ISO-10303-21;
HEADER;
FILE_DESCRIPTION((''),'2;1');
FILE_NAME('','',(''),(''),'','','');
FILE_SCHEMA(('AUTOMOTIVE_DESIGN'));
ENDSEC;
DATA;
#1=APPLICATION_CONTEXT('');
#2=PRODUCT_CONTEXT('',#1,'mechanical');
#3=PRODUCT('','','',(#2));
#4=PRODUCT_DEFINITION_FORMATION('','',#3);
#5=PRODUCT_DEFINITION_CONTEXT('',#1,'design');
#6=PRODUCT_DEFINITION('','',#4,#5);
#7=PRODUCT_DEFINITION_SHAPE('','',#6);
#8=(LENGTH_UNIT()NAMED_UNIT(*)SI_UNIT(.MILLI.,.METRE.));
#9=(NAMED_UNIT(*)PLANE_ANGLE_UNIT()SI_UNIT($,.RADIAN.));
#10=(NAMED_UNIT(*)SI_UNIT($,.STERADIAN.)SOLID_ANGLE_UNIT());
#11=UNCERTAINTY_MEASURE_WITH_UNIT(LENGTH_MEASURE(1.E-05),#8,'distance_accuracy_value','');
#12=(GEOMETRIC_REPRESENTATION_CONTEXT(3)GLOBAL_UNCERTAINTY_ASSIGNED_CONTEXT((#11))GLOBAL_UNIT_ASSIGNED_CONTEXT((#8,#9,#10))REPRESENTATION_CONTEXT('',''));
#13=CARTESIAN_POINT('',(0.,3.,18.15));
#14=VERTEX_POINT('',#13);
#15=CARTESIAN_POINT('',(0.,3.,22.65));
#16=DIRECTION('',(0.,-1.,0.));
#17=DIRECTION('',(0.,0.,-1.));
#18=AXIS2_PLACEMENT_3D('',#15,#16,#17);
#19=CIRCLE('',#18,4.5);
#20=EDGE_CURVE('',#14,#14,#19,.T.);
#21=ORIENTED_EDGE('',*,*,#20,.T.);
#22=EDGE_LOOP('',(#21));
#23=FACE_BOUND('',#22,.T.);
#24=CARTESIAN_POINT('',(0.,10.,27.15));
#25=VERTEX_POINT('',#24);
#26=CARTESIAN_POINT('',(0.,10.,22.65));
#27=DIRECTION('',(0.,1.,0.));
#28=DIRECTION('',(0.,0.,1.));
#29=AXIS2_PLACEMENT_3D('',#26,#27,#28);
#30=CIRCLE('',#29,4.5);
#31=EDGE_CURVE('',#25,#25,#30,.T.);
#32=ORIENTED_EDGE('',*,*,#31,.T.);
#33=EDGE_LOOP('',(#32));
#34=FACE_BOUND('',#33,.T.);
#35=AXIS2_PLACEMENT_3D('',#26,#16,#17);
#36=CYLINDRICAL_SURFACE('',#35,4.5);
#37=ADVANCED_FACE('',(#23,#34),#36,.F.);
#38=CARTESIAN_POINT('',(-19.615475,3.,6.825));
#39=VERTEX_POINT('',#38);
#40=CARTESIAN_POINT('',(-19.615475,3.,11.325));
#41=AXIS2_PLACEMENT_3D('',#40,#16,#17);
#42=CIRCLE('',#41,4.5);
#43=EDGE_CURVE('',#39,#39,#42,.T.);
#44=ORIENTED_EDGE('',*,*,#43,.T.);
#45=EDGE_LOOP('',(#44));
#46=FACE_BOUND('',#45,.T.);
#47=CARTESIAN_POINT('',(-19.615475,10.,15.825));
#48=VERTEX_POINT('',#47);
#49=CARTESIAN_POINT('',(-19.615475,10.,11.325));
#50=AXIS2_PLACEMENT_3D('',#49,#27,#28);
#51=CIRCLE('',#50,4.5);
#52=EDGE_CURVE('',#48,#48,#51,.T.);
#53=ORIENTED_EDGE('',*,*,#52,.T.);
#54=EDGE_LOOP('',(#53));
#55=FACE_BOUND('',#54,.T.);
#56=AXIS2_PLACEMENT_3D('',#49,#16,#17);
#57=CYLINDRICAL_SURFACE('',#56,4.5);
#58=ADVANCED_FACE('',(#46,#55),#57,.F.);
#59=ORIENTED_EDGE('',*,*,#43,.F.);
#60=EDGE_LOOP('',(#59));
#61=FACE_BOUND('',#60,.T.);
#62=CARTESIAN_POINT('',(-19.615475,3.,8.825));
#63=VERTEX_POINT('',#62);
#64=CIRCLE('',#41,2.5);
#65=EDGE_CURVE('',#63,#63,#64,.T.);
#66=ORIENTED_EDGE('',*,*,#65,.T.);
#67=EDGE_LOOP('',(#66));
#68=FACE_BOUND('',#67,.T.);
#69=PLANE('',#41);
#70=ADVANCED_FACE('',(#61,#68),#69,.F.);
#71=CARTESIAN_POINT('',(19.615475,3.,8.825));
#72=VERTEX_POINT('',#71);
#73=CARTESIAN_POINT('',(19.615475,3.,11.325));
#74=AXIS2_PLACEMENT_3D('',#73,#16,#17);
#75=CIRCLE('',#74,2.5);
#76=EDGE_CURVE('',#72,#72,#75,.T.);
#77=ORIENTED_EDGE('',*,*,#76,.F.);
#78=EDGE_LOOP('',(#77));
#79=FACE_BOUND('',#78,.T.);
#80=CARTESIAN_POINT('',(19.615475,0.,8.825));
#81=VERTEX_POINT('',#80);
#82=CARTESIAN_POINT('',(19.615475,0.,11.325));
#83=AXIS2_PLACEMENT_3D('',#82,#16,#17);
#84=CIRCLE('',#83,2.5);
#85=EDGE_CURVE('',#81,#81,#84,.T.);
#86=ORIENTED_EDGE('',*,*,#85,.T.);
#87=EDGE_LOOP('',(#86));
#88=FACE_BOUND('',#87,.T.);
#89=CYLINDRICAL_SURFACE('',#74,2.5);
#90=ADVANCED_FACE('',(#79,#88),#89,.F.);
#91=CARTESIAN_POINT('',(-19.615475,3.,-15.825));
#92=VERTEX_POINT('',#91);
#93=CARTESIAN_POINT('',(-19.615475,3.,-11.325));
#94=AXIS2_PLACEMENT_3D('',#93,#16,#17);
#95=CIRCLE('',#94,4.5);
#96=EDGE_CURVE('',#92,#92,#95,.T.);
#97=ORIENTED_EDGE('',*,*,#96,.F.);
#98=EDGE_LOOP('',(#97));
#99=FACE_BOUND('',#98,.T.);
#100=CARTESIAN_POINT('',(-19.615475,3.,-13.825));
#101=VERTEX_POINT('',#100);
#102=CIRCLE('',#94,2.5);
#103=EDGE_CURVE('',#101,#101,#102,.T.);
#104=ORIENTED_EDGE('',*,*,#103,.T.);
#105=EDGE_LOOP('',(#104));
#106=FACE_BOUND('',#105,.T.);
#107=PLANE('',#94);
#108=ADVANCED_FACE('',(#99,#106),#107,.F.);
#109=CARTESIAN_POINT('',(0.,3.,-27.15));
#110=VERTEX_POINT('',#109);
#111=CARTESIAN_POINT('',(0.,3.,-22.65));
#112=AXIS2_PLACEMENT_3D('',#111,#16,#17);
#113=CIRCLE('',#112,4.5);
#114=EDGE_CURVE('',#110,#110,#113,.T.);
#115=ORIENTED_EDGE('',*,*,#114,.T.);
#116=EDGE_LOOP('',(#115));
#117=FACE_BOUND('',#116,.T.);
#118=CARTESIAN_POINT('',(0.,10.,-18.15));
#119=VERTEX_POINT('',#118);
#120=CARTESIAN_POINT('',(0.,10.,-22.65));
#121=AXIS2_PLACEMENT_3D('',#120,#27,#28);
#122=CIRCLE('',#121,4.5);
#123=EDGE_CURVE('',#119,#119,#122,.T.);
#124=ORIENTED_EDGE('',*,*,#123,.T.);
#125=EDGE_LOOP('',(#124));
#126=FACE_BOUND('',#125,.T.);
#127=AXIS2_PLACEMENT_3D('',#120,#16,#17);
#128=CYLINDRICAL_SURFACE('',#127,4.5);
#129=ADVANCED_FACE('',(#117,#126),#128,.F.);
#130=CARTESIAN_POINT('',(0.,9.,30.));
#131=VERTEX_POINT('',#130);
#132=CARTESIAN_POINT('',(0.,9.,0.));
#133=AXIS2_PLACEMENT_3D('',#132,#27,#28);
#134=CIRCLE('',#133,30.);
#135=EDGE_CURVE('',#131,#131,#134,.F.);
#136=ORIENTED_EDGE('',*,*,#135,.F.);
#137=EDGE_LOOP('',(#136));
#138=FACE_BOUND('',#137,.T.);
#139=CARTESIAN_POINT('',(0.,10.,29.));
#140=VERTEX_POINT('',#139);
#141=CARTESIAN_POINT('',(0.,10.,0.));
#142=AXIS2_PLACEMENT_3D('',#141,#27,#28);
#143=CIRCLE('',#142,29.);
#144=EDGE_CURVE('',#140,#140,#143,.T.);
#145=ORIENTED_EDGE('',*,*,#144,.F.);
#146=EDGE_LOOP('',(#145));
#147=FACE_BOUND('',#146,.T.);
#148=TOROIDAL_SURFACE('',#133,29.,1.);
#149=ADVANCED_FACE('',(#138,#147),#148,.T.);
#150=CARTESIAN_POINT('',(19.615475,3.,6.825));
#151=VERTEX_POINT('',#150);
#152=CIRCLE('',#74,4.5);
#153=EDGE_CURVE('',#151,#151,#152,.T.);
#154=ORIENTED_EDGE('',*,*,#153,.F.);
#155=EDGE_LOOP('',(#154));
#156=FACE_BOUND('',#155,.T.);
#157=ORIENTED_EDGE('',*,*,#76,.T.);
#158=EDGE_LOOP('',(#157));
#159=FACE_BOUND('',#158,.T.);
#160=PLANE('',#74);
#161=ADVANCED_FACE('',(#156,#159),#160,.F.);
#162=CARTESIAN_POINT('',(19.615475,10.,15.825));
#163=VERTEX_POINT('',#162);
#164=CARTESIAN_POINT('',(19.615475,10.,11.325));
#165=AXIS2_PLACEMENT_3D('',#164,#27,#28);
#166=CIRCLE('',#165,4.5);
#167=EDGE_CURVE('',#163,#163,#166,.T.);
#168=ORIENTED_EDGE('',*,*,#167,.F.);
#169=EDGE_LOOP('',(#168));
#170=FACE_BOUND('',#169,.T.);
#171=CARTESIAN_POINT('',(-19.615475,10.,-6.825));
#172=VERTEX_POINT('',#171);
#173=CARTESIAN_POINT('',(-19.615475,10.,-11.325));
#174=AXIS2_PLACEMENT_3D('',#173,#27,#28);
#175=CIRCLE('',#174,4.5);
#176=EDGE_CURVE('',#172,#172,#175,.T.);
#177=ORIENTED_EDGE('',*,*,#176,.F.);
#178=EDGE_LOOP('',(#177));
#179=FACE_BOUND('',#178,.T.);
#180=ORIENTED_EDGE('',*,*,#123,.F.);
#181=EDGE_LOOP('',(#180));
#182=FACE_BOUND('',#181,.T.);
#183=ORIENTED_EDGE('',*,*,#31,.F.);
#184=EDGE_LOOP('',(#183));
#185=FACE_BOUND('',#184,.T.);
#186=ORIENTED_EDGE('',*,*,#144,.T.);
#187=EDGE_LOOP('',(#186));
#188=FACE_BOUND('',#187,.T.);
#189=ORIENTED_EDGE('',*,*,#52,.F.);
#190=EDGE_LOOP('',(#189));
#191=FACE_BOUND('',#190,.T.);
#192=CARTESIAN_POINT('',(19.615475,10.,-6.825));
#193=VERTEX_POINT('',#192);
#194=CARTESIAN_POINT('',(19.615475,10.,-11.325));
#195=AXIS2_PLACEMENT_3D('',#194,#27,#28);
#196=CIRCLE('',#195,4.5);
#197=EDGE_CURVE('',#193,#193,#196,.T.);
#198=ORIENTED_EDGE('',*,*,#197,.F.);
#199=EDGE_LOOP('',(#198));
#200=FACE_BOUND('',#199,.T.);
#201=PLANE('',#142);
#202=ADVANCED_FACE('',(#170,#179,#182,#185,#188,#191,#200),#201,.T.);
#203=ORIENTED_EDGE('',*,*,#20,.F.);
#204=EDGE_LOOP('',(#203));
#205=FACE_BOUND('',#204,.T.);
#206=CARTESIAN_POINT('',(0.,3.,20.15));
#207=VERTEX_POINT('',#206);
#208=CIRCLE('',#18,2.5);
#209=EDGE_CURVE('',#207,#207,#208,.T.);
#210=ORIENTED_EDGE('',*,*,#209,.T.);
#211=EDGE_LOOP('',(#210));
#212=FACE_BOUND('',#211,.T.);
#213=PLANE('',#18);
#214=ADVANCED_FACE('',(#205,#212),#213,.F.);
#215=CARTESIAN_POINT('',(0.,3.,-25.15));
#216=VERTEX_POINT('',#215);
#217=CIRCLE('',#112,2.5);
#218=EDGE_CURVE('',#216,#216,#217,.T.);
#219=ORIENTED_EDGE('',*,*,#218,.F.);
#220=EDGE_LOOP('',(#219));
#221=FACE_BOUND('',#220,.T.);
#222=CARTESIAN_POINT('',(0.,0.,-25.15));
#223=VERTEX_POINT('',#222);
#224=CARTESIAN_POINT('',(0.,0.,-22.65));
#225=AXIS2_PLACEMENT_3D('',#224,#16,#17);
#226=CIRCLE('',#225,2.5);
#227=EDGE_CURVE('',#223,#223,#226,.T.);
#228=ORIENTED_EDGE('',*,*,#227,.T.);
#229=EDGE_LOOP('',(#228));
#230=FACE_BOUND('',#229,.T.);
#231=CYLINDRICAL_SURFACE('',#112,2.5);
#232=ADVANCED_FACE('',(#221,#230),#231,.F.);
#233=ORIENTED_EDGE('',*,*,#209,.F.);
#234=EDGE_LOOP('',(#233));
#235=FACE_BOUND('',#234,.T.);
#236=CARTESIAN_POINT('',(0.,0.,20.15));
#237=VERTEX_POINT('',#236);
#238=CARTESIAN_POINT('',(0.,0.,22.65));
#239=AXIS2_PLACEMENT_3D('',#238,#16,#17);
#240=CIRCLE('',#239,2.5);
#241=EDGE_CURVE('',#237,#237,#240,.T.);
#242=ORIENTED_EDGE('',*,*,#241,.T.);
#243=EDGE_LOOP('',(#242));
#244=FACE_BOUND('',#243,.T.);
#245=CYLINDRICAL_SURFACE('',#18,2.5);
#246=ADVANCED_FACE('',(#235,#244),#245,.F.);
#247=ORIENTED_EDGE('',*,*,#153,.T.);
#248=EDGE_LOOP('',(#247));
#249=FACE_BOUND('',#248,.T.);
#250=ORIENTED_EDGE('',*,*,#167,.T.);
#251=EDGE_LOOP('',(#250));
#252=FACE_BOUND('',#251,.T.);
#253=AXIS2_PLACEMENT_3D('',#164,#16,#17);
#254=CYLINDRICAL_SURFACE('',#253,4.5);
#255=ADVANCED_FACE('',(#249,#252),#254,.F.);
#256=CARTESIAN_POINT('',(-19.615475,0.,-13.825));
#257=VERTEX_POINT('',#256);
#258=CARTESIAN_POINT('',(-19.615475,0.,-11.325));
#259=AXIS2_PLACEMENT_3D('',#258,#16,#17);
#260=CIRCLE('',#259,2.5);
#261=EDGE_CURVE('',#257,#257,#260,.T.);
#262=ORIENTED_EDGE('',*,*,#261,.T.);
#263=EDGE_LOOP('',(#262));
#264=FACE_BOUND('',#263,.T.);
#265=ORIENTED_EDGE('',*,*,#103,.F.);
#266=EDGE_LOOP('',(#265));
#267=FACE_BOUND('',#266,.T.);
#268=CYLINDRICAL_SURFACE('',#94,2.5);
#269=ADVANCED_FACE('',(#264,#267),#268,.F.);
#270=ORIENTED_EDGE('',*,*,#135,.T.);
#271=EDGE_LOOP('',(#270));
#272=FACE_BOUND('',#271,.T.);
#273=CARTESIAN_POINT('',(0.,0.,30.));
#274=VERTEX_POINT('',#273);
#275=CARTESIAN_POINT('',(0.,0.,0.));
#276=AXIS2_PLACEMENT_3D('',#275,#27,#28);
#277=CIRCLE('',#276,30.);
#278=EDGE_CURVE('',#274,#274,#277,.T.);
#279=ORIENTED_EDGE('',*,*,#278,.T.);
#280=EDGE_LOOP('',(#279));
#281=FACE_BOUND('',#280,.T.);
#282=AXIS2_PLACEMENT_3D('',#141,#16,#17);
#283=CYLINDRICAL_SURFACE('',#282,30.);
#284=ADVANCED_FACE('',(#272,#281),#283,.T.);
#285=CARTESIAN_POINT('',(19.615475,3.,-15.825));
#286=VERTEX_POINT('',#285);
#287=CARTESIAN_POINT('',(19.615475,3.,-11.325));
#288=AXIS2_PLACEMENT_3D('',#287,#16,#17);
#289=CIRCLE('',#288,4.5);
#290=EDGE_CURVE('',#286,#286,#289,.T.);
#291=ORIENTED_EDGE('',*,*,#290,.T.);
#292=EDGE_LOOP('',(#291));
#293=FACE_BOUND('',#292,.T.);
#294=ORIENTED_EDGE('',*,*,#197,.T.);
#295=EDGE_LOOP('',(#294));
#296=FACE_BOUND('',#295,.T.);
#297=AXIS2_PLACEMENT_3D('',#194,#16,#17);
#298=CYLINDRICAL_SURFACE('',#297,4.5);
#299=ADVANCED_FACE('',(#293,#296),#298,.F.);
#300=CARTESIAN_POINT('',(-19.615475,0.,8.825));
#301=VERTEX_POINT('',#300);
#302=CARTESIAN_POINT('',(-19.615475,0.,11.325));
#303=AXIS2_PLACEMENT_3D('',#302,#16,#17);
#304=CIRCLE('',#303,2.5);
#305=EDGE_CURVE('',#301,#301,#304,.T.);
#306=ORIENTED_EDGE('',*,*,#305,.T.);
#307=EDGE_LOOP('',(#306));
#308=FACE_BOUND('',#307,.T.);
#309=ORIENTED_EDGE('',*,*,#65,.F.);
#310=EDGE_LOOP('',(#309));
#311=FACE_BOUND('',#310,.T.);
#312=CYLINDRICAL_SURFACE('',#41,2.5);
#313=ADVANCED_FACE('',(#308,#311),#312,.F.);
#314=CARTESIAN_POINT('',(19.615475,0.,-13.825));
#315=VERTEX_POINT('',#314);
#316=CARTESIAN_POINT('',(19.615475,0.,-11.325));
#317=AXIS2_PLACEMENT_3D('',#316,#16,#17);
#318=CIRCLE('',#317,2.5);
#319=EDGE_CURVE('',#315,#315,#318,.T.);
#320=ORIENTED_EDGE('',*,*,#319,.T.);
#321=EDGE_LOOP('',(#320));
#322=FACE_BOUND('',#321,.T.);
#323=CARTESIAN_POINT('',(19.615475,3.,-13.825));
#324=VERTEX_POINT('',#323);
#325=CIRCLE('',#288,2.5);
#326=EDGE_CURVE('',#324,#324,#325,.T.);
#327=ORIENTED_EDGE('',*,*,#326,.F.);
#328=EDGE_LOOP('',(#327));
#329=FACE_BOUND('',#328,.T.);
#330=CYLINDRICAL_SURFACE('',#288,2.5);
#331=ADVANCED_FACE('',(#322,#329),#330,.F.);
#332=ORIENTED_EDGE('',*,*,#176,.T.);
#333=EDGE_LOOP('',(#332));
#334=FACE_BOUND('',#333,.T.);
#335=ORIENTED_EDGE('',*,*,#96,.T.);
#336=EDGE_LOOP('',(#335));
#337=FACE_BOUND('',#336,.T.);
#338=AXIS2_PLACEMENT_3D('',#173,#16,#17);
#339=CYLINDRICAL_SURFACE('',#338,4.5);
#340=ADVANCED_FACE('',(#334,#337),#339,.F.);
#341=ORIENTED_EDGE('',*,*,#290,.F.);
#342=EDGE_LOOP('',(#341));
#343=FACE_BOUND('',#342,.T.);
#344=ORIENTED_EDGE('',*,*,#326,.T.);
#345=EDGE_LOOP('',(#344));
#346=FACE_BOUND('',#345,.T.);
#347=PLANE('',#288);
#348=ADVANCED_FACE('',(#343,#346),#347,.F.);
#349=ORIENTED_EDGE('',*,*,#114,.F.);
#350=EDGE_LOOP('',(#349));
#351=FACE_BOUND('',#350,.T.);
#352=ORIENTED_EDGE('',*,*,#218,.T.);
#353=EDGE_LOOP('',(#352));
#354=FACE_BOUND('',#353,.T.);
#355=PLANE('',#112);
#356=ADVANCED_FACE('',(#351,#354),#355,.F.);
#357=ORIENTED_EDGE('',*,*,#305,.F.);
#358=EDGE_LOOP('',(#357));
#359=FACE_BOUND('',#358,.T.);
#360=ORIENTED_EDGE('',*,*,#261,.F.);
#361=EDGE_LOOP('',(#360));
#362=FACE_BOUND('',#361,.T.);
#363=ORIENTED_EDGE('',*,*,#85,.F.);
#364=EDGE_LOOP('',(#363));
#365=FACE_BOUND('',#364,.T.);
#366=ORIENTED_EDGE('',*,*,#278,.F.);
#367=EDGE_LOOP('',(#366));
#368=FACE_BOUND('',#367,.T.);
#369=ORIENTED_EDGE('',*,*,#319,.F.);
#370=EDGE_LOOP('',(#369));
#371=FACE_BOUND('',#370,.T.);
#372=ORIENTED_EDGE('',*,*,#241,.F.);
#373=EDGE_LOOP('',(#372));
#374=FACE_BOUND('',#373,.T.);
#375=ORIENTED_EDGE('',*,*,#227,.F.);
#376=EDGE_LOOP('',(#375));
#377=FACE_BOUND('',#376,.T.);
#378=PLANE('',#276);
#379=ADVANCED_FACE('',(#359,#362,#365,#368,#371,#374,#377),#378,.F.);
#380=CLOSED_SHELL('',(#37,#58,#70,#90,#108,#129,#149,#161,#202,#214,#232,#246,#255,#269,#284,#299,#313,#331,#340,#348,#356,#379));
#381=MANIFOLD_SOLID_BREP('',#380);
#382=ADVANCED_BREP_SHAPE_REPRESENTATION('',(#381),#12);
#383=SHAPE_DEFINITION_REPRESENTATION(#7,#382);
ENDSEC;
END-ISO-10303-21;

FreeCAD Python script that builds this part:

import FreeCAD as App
import Part
import Sketcher

V = App.Vector
Q = App.Units.Quantity


def edges_at(feature, points):
    """Names of the edges that pass closest to the given points."""
    edges = feature.Shape.Edges
    near = lambda p: min(range(len(edges)), key=lambda i: edges[i].distToShape(Part.Vertex(*p))[0])
    return sorted({f"Edge{near(p) + 1}" for p in points})

doc = App.newDocument("Part")
params = doc.addObject("Spreadsheet::Sheet", "Params")
for row, (alias, value) in enumerate([
    ("sketch1_diameter", "60 mm"),
    ("sketch1_diameter2", "9 mm"),
    ("pad1_length", "10 mm"),
    ("sketch2_diameter", "9 mm"),
    ("sketch2_diameter2", "5 mm"),
    ("pad2_length", "3 mm"),
    ("fillet_radius", "1 mm"),
], start=1):
    params.set(f"A{row}", alias)
    params.set(f"B{row}", "=" + value)
    params.setAlias(f"B{row}", alias)

body = doc.addObject("PartDesign::Body", "Body")

# Sketch on XZ plane
sketch1 = body.newObject("Sketcher::SketchObject", "Sketch")
sketch1.AttachmentSupport = (doc.getObject("XZ_Plane"), [""])
sketch1.MapMode = "FlatFace"
sketch1.addGeometry([
    Part.Circle(V(0, 0, 0), V(0, 0, 1), 30),  # 0
    Part.Circle(V(-19.615475, 11.325, 0), V(0, 0, 1), 4.5),  # 1
    Part.Circle(V(0, 22.65, 0), V(0, 0, 1), 4.5),  # 2
    Part.Circle(V(19.615475, 11.325, 0), V(0, 0, 1), 4.5),  # 3
    Part.Circle(V(-19.615475, -11.325, 0), V(0, 0, 1), 4.5),  # 4
    Part.Circle(V(19.615475, -11.325, 0), V(0, 0, 1), 4.5),  # 5
    Part.Circle(V(0, -22.65, 0), V(0, 0, 1), 4.5),  # 6
], False)
sketch1.addConstraint([
    Sketcher.Constraint("Coincident", 0, 3, -1, 1),
    Sketcher.Constraint("Equal", 1, 2),
    Sketcher.Constraint("Equal", 2, 3),
    Sketcher.Constraint("Equal", 3, 4),
    Sketcher.Constraint("Equal", 4, 5),
    Sketcher.Constraint("Equal", 5, 6),
    Sketcher.Constraint("Symmetric", 3, 3, 4, 3, -1, 1),
    Sketcher.Constraint("Symmetric", 1, 3, 5, 3, -1, 1),
    Sketcher.Constraint("Symmetric", 2, 3, 6, 3, -1, 1),
    Sketcher.Constraint("Symmetric", 1, 3, 3, 3, -2),
    Sketcher.Constraint("PointOnObject", 2, 3, -2),
    Sketcher.Constraint("Diameter", 0, Q("60 mm")),
    Sketcher.Constraint("Diameter", 1, Q("9 mm")),
    Sketcher.Constraint("DistanceY", -1, 1, 2, 3, Q("22.65 mm")),
    Sketcher.Constraint("DistanceY", 4, 3, 1, 3, Q("22.65 mm")),
    Sketcher.Constraint("DistanceX", 1, 3, 3, 3, Q("39.230951 mm")),
])
sketch1.setExpression("Constraints[11]", "Params.sketch1_diameter")
sketch1.setExpression("Constraints[12]", "Params.sketch1_diameter2")
pad1 = body.newObject("PartDesign::Pad", "Pad")
pad1.Profile = sketch1
pad1.setExpression("Length", "Params.pad1_length")
pad1.Reversed = True

# Sketch on XZ plane
sketch2 = body.newObject("Sketcher::SketchObject", "Sketch001")
sketch2.AttachmentSupport = (doc.getObject("XZ_Plane"), [""])
sketch2.MapMode = "FlatFace"
sketch2.addGeometry([
    Part.Circle(V(-19.615475, -11.325, 0), V(0, 0, 1), 4.5),  # 0
    Part.Circle(V(-19.615475, -11.325, 0), V(0, 0, 1), 2.5),  # 1
    Part.Circle(V(-19.615475, 11.325, 0), V(0, 0, 1), 4.5),  # 2
    Part.Circle(V(-19.615475, 11.325, 0), V(0, 0, 1), 2.5),  # 3
    Part.Circle(V(0, 22.65, 0), V(0, 0, 1), 4.5),  # 4
    Part.Circle(V(0, 22.65, 0), V(0, 0, 1), 2.5),  # 5
    Part.Circle(V(19.615475, 11.325, 0), V(0, 0, 1), 4.5),  # 6
    Part.Circle(V(19.615475, 11.325, 0), V(0, 0, 1), 2.5),  # 7
    Part.Circle(V(19.615475, -11.325, 0), V(0, 0, 1), 4.5),  # 8
    Part.Circle(V(19.615475, -11.325, 0), V(0, 0, 1), 2.5),  # 9
    Part.Circle(V(0, -22.65, 0), V(0, 0, 1), 4.5),  # 10
    Part.Circle(V(0, -22.65, 0), V(0, 0, 1), 2.5),  # 11
], False)
sketch2.addConstraint([
    Sketcher.Constraint("Coincident", 1, 3, 0, 3),
    Sketcher.Constraint("Coincident", 3, 3, 2, 3),
    Sketcher.Constraint("Coincident", 5, 3, 4, 3),
    Sketcher.Constraint("Coincident", 7, 3, 6, 3),
    Sketcher.Constraint("Coincident", 9, 3, 8, 3),
    Sketcher.Constraint("Coincident", 11, 3, 10, 3),
    Sketcher.Constraint("Equal", 0, 2),
    Sketcher.Constraint("Equal", 1, 3),
    Sketcher.Constraint("Equal", 2, 4),
    Sketcher.Constraint("Equal", 3, 5),
    Sketcher.Constraint("Equal", 4, 6),
    Sketcher.Constraint("Equal", 5, 7),
    Sketcher.Constraint("Equal", 6, 8),
    Sketcher.Constraint("Equal", 7, 9),
    Sketcher.Constraint("Equal", 8, 10),
    Sketcher.Constraint("Equal", 9, 11),
    Sketcher.Constraint("Symmetric", 0, 3, 6, 3, -1, 1),
    Sketcher.Constraint("Symmetric", 2, 3, 8, 3, -1, 1),
    Sketcher.Constraint("Symmetric", 4, 3, 10, 3, -1, 1),
    Sketcher.Constraint("Symmetric", 2, 3, 6, 3, -2),
    Sketcher.Constraint("PointOnObject", 4, 3, -2),
    Sketcher.Constraint("Diameter", 0, Q("9 mm")),
    Sketcher.Constraint("Diameter", 1, Q("5 mm")),
    Sketcher.Constraint("DistanceY", -1, 1, 4, 3, Q("22.65 mm")),
    Sketcher.Constraint("DistanceY", 0, 3, 2, 3, Q("22.65 mm")),
    Sketcher.Constraint("DistanceX", 2, 3, 6, 3, Q("39.230951 mm")),
])
sketch2.setExpression("Constraints[21]", "Params.sketch2_diameter")
sketch2.setExpression("Constraints[22]", "Params.sketch2_diameter2")
pad2 = body.newObject("PartDesign::Pad", "Pad001")
pad2.Profile = sketch2
pad2.setExpression("Length", "Params.pad2_length")
pad2.Reversed = True
doc.recompute()

fillet = body.newObject("PartDesign::Fillet", "Fillet")
fillet.Base = (pad2, edges_at(pad2, [(-30, 10, 0)]))
fillet.setExpression("Radius", "Params.fillet_radius")

doc.recompute()
